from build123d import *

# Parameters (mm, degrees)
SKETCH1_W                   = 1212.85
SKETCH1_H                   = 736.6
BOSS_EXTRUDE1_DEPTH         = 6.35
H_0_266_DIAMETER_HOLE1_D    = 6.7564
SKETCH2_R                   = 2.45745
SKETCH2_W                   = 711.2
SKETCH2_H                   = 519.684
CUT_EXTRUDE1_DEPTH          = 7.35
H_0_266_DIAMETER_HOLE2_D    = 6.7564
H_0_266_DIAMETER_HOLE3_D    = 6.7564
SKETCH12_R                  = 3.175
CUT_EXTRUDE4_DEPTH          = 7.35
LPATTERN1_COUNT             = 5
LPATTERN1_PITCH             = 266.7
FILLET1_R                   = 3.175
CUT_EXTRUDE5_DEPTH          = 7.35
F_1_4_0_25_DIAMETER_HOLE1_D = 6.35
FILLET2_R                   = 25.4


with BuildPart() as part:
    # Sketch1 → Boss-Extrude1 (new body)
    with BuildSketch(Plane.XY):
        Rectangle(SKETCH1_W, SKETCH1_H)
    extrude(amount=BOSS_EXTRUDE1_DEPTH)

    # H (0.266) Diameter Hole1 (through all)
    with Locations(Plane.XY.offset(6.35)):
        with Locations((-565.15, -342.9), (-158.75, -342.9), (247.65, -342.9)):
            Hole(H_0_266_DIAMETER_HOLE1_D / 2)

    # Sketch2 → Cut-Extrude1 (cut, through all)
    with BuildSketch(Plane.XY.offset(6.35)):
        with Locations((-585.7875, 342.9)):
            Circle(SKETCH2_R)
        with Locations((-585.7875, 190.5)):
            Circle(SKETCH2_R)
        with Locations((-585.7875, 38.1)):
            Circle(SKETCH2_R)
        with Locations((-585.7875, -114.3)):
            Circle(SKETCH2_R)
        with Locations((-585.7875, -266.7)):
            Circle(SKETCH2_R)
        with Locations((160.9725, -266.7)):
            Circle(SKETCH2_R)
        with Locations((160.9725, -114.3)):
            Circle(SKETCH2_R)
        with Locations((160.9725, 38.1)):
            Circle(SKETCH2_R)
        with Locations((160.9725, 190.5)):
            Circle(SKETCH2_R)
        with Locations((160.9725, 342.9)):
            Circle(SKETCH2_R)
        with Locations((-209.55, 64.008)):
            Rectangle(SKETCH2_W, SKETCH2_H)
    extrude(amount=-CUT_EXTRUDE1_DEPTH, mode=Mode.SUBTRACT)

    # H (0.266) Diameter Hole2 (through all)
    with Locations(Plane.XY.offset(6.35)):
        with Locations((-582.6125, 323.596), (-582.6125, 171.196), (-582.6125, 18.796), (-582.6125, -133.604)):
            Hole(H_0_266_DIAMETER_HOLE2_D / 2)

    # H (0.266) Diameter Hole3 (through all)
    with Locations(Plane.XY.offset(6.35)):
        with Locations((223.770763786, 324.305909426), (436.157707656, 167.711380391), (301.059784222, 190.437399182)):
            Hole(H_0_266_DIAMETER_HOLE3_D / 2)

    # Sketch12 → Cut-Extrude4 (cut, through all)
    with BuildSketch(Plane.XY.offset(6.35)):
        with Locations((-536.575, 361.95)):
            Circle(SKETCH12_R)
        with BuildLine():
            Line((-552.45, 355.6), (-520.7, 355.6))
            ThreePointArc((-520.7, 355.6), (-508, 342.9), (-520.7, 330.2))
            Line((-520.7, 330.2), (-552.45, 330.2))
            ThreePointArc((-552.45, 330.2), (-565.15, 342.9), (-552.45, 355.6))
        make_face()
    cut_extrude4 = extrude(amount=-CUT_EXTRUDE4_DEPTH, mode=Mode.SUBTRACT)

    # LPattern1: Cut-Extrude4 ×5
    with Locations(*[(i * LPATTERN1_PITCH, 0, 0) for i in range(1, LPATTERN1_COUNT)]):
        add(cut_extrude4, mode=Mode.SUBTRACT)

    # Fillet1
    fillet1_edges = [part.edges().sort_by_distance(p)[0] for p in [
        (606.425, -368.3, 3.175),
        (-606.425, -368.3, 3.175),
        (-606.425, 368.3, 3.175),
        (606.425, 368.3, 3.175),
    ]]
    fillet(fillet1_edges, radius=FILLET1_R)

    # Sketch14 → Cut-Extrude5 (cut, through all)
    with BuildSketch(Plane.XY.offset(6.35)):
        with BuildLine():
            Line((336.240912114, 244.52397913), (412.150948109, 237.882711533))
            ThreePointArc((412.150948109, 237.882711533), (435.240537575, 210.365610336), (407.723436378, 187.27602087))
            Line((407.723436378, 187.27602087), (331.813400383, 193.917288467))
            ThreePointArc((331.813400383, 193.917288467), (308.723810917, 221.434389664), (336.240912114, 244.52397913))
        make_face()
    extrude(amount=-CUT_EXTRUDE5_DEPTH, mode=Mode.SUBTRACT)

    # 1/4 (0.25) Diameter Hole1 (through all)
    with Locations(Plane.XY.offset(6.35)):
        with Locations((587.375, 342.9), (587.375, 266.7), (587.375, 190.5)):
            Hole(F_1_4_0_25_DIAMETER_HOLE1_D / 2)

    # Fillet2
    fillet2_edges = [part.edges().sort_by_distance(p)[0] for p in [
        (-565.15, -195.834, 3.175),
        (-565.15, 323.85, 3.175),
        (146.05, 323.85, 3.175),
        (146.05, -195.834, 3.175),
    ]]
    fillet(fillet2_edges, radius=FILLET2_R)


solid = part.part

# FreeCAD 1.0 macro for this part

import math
import FreeCAD as App
import Part
import Sketcher

V = App.Vector
Q = App.Units.Quantity


def edges_at(feature, points):
    """Names of the edges that pass closest to the given points."""
    edges = feature.Shape.Edges
    near = lambda p: min(range(len(edges)), key=lambda i: edges[i].distToShape(Part.Vertex(*p))[0])
    return sorted({f"Edge{near(p) + 1}" for p in points})


def add_polygon(sketch, points):
    """Adds a closed chain of lines whose ends are joined by coincident constraints."""
    first, n = sketch.GeometryCount, len(points)
    for a, b in zip(points, points[1:] + points[:1]):
        sketch.addGeometry(Part.LineSegment(App.Vector(*a, 0), App.Vector(*b, 0)), False)
    for i in range(n):
        sketch.addConstraint(Sketcher.Constraint("Coincident", first + i, 2, first + (i + 1) % n, 1))

doc = App.newDocument("Part")
body = doc.addObject("PartDesign::Body", "Body")

# Sketch on XY plane
sketch1 = body.newObject("Sketcher::SketchObject", "Sketch")
sketch1.AttachmentSupport = (doc.getObject("XY_Plane"), [""])
sketch1.MapMode = "FlatFace"
add_polygon(sketch1, [(-606, 368), (-606, -368), (606, -368), (606, 368)])  # lines 0-3
sketch1.addConstraint([
    Sketcher.Constraint("Vertical", 0),
    Sketcher.Constraint("Horizontal", 1),
    Sketcher.Constraint("Vertical", 2),
    Sketcher.Constraint("Horizontal", 3),
    Sketcher.Constraint("Symmetric", 0, 2, 2, 2, -1, 1),
    Sketcher.Constraint("DistanceY", 0, 2, 0, 1, Q("29 in")),
    Sketcher.Constraint("DistanceX", 1, 1, 1, 2, Q("47.75 in")),
])
pad1 = body.newObject("PartDesign::Pad", "Pad")
pad1.Profile = sketch1
pad1.Length = Q("0.25 in")

# Sketch on XY plane
sketch2 = body.newObject("Sketcher::SketchObject", "Sketch001")
sketch2.AttachmentSupport = (doc.getObject("XY_Plane"), [""])
sketch2.MapMode = "FlatFace"
sketch2.AttachmentOffset = App.Placement(V(0, 0, 0.25 * 25.4), App.Rotation())
sketch2.addGeometry([
    Part.Circle(V(-565.1, -342.9, 0), V(0, 0, 1), 3.4),
    Part.Circle(V(-158.8, -342.9, 0), V(0, 0, 1), 3.4),
    Part.Circle(V(247.7, -342.9, 0), V(0, 0, 1), 3.4),
], False)
sketch2.addConstraint([
    Sketcher.Constraint("Equal", 0, 1),
    Sketcher.Constraint("Equal", 1, 2),
    Sketcher.Constraint("Horizontal", 0, 3, 1, 3),
    Sketcher.Constraint("Horizontal", 1, 3, 2, 3),
    Sketcher.Constraint("Diameter", 0, Q("0.266 in")),
    Sketcher.Constraint("DistanceX", 0, 3, 1, 3, Q("16 in")),
    Sketcher.Constraint("DistanceX", 1, 3, 2, 3, Q("16 in")),
    Sketcher.Constraint("DistanceY", 0, 3, -1, 1, Q("13.5 in")),
    Sketcher.Constraint("DistanceX", 0, 3, -1, 1, Q("22.25 in")),
])
doc.recompute()
hole = body.newObject("PartDesign::Hole", "Hole")
hole.Profile = sketch2
hole.ThreadType = "None"
hole.Diameter = Q("0.266 in")
hole.DepthType = "ThroughAll"

# Sketch on XY plane
sketch3 = body.newObject("Sketcher::SketchObject", "Sketch002")
sketch3.AttachmentSupport = (doc.getObject("XY_Plane"), [""])
sketch3.MapMode = "FlatFace"
sketch3.AttachmentOffset = App.Placement(V(0, 0, 0.25 * 25.4), App.Rotation())
sketch3.addGeometry(Part.Circle(V(-585.8, 342.9, 0), V(0, 0, 1), 2.5), False)  # 0
sketch3.addGeometry(Part.Circle(V(-585.8, 190.5, 0), V(0, 0, 1), 2.5), False)  # 1
sketch3.addGeometry(Part.Circle(V(-585.8, 38.1, 0), V(0, 0, 1), 2.5), False)  # 2
sketch3.addGeometry(Part.Circle(V(-585.8, -114.3, 0), V(0, 0, 1), 2.5), False)  # 3
sketch3.addGeometry(Part.Circle(V(-585.8, -266.7, 0), V(0, 0, 1), 2.5), False)  # 4
sketch3.addGeometry(Part.Circle(V(161, -266.7, 0), V(0, 0, 1), 2.5), False)  # 5
sketch3.addGeometry(Part.Circle(V(161, -114.3, 0), V(0, 0, 1), 2.5), False)  # 6
sketch3.addGeometry(Part.Circle(V(161, 38.1, 0), V(0, 0, 1), 2.5), False)  # 7
sketch3.addGeometry(Part.Circle(V(161, 190.5, 0), V(0, 0, 1), 2.5), False)  # 8
sketch3.addGeometry(Part.Circle(V(161, 342.9, 0), V(0, 0, 1), 2.5), False)  # 9
add_polygon(sketch3, [(-565.1, 323.9), (-565.1, -195.8), (146.1, -195.8), (146.1, 323.9)])  # lines 10-13
sketch3.addConstraint([
    Sketcher.Constraint("Vertical", 10),
    Sketcher.Constraint("Horizontal", 11),
    Sketcher.Constraint("Vertical", 12),
    Sketcher.Constraint("Horizontal", 13),
    Sketcher.Constraint("Equal", 0, 1),
    Sketcher.Constraint("Equal", 1, 2),
    Sketcher.Constraint("Equal", 2, 3),
    Sketcher.Constraint("Equal", 3, 4),
    Sketcher.Constraint("Equal", 4, 5),
    Sketcher.Constraint("Equal", 5, 6),
    Sketcher.Constraint("Equal", 6, 7),
    Sketcher.Constraint("Equal", 7, 8),
    Sketcher.Constraint("Equal", 8, 9),
    Sketcher.Constraint("Horizontal", 4, 3, 5, 3),
    Sketcher.Constraint("Horizontal", 3, 3, 6, 3),
    Sketcher.Constraint("Horizontal", 2, 3, 7, 3),
    Sketcher.Constraint("Horizontal", 1, 3, 8, 3),
    Sketcher.Constraint("Horizontal", 0, 3, 9, 3),
    Sketcher.Constraint("Vertical", 0, 3, 1, 3),
    Sketcher.Constraint("Vertical", 1, 3, 2, 3),
    Sketcher.Constraint("Vertical", 2, 3, 3, 3),
    Sketcher.Constraint("Vertical", 3, 3, 4, 3),
    Sketcher.Constraint("Vertical", 5, 3, 6, 3),
    Sketcher.Constraint("Vertical", 6, 3, 7, 3),
    Sketcher.Constraint("Vertical", 7, 3, 8, 3),
    Sketcher.Constraint("Vertical", 8, 3, 9, 3),
    Sketcher.Constraint("DistanceX", 11, 1, 11, 2, Q("28 in")),
    Sketcher.Constraint("DistanceY", 1, 3, 0, 3, Q("6 in")),
    Sketcher.Constraint("DistanceY", 2, 3, 1, 3, Q("6 in")),
    Sketcher.Constraint("DistanceY", 3, 3, 2, 3, Q("6 in")),
    Sketcher.Constraint("DistanceY", 4, 3, 3, 3, Q("6 in")),
    Sketcher.Constraint("Diameter", 0, Q("0.1935 in")),
    Sketcher.Constraint("DistanceY", 10, 2, 10, 1, Q("20.46 in")),
    Sketcher.Constraint("DistanceY", -1, 1, 0, 3, Q("13.5 in")),
    Sketcher.Constraint("DistanceX", 4, 3, 5, 3, Q("29.4 in")),
    Sketcher.Constraint("DistanceX", 10, 2, -1, 1, Q("22.25 in")),
    Sketcher.Constraint("DistanceY", 10, 2, -1, 1, Q("7.71 in")),
    Sketcher.Constraint("DistanceX", 0, 3, -1, 1, Q("23.0625 in")),
])
pocket1 = body.newObject("PartDesign::Pocket", "Pocket")
pocket1.Profile = sketch3
pocket1.Type = "ThroughAll"

# Sketch on XY plane
sketch4 = body.newObject("Sketcher::SketchObject", "Sketch003")
sketch4.AttachmentSupport = (doc.getObject("XY_Plane"), [""])
sketch4.MapMode = "FlatFace"
sketch4.AttachmentOffset = App.Placement(V(0, 0, 0.25 * 25.4), App.Rotation())
sketch4.addGeometry([
    Part.Circle(V(-582.6, 323.6, 0), V(0, 0, 1), 3.4),
    Part.Circle(V(-582.6, 171.2, 0), V(0, 0, 1), 3.4),
    Part.Circle(V(-582.6, 18.8, 0), V(0, 0, 1), 3.4),
    Part.Circle(V(-582.6, -133.6, 0), V(0, 0, 1), 3.4),
], False)
sketch4.addConstraint([
    Sketcher.Constraint("Equal", 0, 1),
    Sketcher.Constraint("Equal", 1, 2),
    Sketcher.Constraint("Equal", 2, 3),
    Sketcher.Constraint("Vertical", 0, 3, 1, 3),
    Sketcher.Constraint("Vertical", 1, 3, 2, 3),
    Sketcher.Constraint("Vertical", 2, 3, 3, 3),
    Sketcher.Constraint("Diameter", 0, Q("0.266 in")),
    Sketcher.Constraint("DistanceY", 1, 3, 0, 3, Q("6 in")),
    Sketcher.Constraint("DistanceY", 2, 3, 1, 3, Q("6 in")),
    Sketcher.Constraint("DistanceY", 3, 3, 2, 3, Q("6 in")),
    Sketcher.Constraint("DistanceY", -1, 1, 0, 3, Q("12.74 in")),
    Sketcher.Constraint("DistanceX", 0, 3, -1, 1, Q("22.9375 in")),
])
doc.recompute()
hole2 = body.newObject("PartDesign::Hole", "Hole001")
hole2.Profile = sketch4
hole2.ThreadType = "None"
hole2.Diameter = Q("0.266 in")
hole2.DepthType = "ThroughAll"

# Sketch on XY plane
sketch5 = body.newObject("Sketcher::SketchObject", "Sketch004")
sketch5.AttachmentSupport = (doc.getObject("XY_Plane"), [""])
sketch5.MapMode = "FlatFace"
sketch5.AttachmentOffset = App.Placement(V(0, 0, 0.25 * 25.4), App.Rotation())
sketch5.addGeometry([
    Part.Circle(V(223.8, 324.3, 0), V(0, 0, 1), 3.4),
    Part.Circle(V(436.2, 167.7, 0), V(0, 0, 1), 3.4),
    Part.Circle(V(301.1, 190.4, 0), V(0, 0, 1), 3.4),
], False)
sketch5.addConstraint([
    Sketcher.Constraint("Equal", 0, 1),
    Sketcher.Constraint("Equal", 1, 2),
    Sketcher.Constraint("Diameter", 0, Q("0.266 in")),
    Sketcher.Constraint("DistanceY", -1, 1, 2, 3, 190.437399),
    Sketcher.Constraint("DistanceY", -1, 1, 0, 3, 324.305909),
    Sketcher.Constraint("DistanceY", -1, 1, 1, 3, 167.71138),
    Sketcher.Constraint("DistanceX", 0, 3, 2, 3, 77.28902),
    Sketcher.Constraint("DistanceX", -1, 1, 0, 3, 223.770764),
    Sketcher.Constraint("DistanceX", -1, 1, 1, 3, 436.157708),
])
doc.recompute()
hole3 = body.newObject("PartDesign::Hole", "Hole002")
hole3.Profile = sketch5
hole3.ThreadType = "None"
hole3.Diameter = Q("0.266 in")
hole3.DepthType = "ThroughAll"

# Sketch on XY plane
sketch6 = body.newObject("Sketcher::SketchObject", "Sketch005")
sketch6.AttachmentSupport = (doc.getObject("XY_Plane"), [""])
sketch6.MapMode = "FlatFace"
sketch6.AttachmentOffset = App.Placement(V(0, 0, 0.25 * 25.4), App.Rotation())
sketch6.addGeometry([
    Part.Circle(V(-536.6, 361.9, 0), V(0, 0, 1), 3.2),  # 0
    Part.LineSegment(V(-520.7, 355.6, 0), V(-552.5, 355.6, 0)),  # 1
    Part.ArcOfCircle(Part.Circle(V(-552.5, 342.9, 0), V(0, 0, 1), 12.7), math.radians(90), math.radians(270)),  # 2
    Part.LineSegment(V(-552.5, 330.2, 0), V(-520.7, 330.2, 0)),  # 3
    Part.ArcOfCircle(Part.Circle(V(-520.7, 342.9, 0), V(0, 0, 1), 12.7), math.radians(-90), math.radians(90)),  # 4
], False)
sketch6.addConstraint([
    Sketcher.Constraint("Tangent", 1, 2, 2, 1),
    Sketcher.Constraint("Tangent", 2, 2, 3, 1),
    Sketcher.Constraint("Tangent", 3, 2, 4, 1),
    Sketcher.Constraint("Tangent", 4, 2, 1, 1),
    Sketcher.Constraint("Horizontal", 1),
    Sketcher.Constraint("Horizontal", 3),
    Sketcher.Constraint("Radius", 2, Q("0.5 in")),
    Sketcher.Constraint("Diameter", 0, Q("0.25 in")),
    Sketcher.Constraint("DistanceY", -1, 1, 1, 2, Q("14 in")),
    Sketcher.Constraint("DistanceX", 1, 2, 1, 1, Q("1.25 in")),
    Sketcher.Constraint("DistanceX", 4, 3, -1, 1, Q("20.5 in")),
    Sketcher.Constraint("DistanceY", -1, 1, 0, 3, Q("14.25 in")),
    Sketcher.Constraint("DistanceX", 0, 3, -1, 1, Q("21.125 in")),
])
pocket2 = body.newObject("PartDesign::Pocket", "Pocket001")
pocket2.Profile = sketch6
pocket2.Type = "ThroughAll"
doc.recompute()

linearpattern = body.newObject("PartDesign::LinearPattern", "LinearPattern")
linearpattern.Originals = [pocket2]
linearpattern.Direction = (doc.getObject("X_Axis"), [""])
linearpattern.Mode = "offset"
linearpattern.Offset = Q("10.5 in")
linearpattern.Occurrences = 5
body.Tip = linearpattern
doc.recompute()

fillet = body.newObject("PartDesign::Fillet", "Fillet")
fillet.Base = (linearpattern, edges_at(linearpattern, [
    (606.425, -368.3, 3.175),
    (-606.425, -368.3, 3.175),
    (-606.425, 368.3, 3.175),
    (606.425, 368.3, 3.175),
]))
fillet.Radius = Q("0.125 in")

# Sketch on XY plane
sketch7 = body.newObject("Sketcher::SketchObject", "Sketch006")
sketch7.AttachmentSupport = (doc.getObject("XY_Plane"), [""])
sketch7.MapMode = "FlatFace"
sketch7.AttachmentOffset = App.Placement(V(0, 0, 0.25 * 25.4), App.Rotation())
sketch7.addGeometry([
    Part.LineSegment(V(412, 238, 0), V(336, 245, 0)),
    Part.ArcOfCircle(Part.Circle(V(334, 219, 0), V(0, 0, 1), 25), math.radians(85), math.radians(265)),
    Part.LineSegment(V(332, 194, 0), V(408, 187, 0)),
    Part.ArcOfCircle(Part.Circle(V(410, 213, 0), V(0, 0, 1), 25), math.radians(-95), math.radians(85)),
], False)
sketch7.addConstraint([
    Sketcher.Constraint("Tangent", 0, 2, 1, 1),
    Sketcher.Constraint("Tangent", 1, 2, 2, 1),
    Sketcher.Constraint("Tangent", 2, 2, 3, 1),
    Sketcher.Constraint("Tangent", 3, 2, 0, 1),
    Sketcher.Constraint("Equal", 1, 3),
    Sketcher.Constraint("Radius", 1, Q("1 in")),
    Sketcher.Constraint("Distance", 0, Q("3 in")),
    Sketcher.Constraint("Angle", 0, Q("175 deg")),
    Sketcher.Constraint("DistanceX", -1, 1, 1, 2, 331.8134),
    Sketcher.Constraint("DistanceY", -1, 1, 0, 2, 244.523979),
])
pocket3 = body.newObject("PartDesign::Pocket", "Pocket002")
pocket3.Profile = sketch7
pocket3.Type = "ThroughAll"

# Sketch on XY plane
sketch8 = body.newObject("Sketcher::SketchObject", "Sketch007")
sketch8.AttachmentSupport = (doc.getObject("XY_Plane"), [""])
sketch8.MapMode = "FlatFace"
sketch8.AttachmentOffset = App.Placement(V(0, 0, 0.25 * 25.4), App.Rotation())
sketch8.addGeometry([
    Part.Circle(V(587.4, 342.9, 0), V(0, 0, 1), 3.2),
    Part.Circle(V(587.4, 266.7, 0), V(0, 0, 1), 3.2),
    Part.Circle(V(587.4, 190.5, 0), V(0, 0, 1), 3.2),
], False)
sketch8.addConstraint([
    Sketcher.Constraint("Equal", 0, 1),
    Sketcher.Constraint("Equal", 1, 2),
    Sketcher.Constraint("Vertical", 0, 3, 1, 3),
    Sketcher.Constraint("Vertical", 1, 3, 2, 3),
    Sketcher.Constraint("Diameter", 0, Q("0.25 in")),
    Sketcher.Constraint("DistanceY", 1, 3, 0, 3, Q("3 in")),
    Sketcher.Constraint("DistanceY", 2, 3, 1, 3, Q("3 in")),
    Sketcher.Constraint("DistanceY", -1, 1, 0, 3, Q("13.5 in")),
    Sketcher.Constraint("DistanceX", -1, 1, 0, 3, Q("23.125 in")),
])
doc.recompute()
hole4 = body.newObject("PartDesign::Hole", "Hole003")
hole4.Profile = sketch8
hole4.ThreadType = "None"
hole4.Diameter = Q("0.25 in")
hole4.DepthType = "ThroughAll"
doc.recompute()

fillet2 = body.newObject("PartDesign::Fillet", "Fillet001")
fillet2.Base = (hole4, edges_at(hole4, [
    (-565.15, -195.834, 3.175),
    (-565.15, 323.85, 3.175),
    (146.05, 323.85, 3.175),
    (146.05, -195.834, 3.175),
]))
fillet2.Radius = Q("1 in")

doc.recompute()
